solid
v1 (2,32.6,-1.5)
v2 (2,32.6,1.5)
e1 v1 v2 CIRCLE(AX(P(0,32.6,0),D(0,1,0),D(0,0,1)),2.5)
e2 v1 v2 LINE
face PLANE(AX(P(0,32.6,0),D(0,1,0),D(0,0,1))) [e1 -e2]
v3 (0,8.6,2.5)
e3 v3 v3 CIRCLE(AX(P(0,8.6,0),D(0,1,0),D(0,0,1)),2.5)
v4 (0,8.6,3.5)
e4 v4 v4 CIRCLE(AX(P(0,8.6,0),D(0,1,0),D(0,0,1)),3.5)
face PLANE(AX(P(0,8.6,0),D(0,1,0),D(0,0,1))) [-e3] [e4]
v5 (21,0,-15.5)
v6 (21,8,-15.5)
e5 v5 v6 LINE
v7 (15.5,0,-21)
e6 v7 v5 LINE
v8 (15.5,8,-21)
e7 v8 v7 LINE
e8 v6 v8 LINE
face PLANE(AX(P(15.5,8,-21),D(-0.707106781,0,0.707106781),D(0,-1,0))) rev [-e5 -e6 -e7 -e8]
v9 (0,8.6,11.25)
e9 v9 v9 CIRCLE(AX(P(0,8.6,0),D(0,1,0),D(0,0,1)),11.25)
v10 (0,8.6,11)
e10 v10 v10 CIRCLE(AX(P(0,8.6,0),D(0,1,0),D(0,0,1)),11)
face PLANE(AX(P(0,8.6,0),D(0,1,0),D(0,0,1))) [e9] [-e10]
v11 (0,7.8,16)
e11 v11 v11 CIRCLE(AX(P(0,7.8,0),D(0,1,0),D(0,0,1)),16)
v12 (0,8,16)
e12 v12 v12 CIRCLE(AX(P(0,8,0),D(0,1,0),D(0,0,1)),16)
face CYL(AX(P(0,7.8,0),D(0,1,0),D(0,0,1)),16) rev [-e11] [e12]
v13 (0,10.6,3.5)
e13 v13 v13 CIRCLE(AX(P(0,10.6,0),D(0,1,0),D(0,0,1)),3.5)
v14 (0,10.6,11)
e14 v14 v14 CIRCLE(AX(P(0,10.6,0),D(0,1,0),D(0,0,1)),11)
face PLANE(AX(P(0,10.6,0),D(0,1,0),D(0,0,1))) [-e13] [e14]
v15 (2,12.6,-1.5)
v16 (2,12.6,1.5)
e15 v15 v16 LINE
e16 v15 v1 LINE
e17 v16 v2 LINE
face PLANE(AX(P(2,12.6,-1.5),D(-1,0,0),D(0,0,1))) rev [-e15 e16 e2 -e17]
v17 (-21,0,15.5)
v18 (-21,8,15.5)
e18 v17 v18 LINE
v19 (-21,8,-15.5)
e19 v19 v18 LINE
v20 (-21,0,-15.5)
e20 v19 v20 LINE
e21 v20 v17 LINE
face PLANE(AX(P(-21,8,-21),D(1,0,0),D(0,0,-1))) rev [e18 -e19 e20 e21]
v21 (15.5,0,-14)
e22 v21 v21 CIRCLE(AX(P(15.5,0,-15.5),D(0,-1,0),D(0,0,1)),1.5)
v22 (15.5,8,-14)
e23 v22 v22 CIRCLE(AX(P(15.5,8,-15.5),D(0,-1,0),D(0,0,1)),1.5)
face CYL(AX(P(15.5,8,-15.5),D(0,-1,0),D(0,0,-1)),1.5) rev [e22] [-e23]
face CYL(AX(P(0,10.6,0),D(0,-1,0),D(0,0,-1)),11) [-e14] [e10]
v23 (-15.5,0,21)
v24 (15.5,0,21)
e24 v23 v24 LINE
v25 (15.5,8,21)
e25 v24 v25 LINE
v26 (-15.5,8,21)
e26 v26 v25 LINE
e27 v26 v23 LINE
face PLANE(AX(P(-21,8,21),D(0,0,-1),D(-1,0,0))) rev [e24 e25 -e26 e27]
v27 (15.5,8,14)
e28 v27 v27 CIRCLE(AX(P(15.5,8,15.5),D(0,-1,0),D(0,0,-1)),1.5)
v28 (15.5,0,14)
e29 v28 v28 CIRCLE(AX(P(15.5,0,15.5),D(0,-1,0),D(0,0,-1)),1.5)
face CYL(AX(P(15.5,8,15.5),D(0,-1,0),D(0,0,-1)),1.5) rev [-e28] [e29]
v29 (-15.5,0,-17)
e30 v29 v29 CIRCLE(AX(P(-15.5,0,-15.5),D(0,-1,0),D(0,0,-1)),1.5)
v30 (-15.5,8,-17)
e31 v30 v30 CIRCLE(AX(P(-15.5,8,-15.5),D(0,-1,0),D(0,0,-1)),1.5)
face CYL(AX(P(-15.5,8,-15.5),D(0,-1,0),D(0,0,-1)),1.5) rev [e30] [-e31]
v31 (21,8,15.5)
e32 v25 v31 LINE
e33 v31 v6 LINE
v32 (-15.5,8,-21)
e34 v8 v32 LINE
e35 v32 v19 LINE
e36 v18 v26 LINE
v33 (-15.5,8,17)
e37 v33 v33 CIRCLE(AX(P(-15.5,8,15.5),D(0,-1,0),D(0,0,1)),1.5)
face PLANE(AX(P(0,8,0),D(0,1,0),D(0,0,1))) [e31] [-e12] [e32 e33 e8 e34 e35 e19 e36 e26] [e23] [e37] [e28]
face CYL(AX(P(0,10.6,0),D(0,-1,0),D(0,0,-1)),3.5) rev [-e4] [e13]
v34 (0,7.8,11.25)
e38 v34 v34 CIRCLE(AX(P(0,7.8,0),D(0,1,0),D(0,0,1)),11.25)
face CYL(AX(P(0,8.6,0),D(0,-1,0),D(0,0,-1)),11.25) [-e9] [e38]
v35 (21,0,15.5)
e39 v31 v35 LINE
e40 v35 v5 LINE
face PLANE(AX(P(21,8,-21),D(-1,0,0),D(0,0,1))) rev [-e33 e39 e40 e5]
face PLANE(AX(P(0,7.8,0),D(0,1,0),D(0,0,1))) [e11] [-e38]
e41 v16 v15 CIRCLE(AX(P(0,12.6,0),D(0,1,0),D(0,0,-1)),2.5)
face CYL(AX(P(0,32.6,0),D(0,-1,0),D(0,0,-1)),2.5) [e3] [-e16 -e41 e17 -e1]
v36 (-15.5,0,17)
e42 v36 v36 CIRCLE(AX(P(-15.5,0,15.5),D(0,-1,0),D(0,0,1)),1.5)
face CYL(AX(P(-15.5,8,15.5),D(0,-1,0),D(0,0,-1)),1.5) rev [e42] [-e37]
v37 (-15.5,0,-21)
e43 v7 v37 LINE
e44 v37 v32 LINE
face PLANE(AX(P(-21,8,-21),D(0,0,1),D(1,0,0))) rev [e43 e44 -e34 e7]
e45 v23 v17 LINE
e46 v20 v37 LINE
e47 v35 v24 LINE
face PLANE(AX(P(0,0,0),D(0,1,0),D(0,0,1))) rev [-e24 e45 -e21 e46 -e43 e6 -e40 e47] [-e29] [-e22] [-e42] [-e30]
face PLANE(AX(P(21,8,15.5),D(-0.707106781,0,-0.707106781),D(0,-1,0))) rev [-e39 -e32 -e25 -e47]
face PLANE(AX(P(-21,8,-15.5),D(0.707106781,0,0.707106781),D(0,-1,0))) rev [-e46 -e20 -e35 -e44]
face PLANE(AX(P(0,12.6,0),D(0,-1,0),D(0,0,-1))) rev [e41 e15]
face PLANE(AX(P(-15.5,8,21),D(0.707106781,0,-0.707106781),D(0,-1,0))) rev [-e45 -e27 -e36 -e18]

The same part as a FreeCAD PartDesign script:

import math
import FreeCAD as App
import Part
import Sketcher
from FreeCAD import Vector


def edges_at(feature, points):
    """Names of the edges that pass closest to the given points."""
    edges = feature.Shape.Edges
    near = lambda p: min(range(len(edges)), key=lambda i: edges[i].distToShape(Part.Vertex(*p))[0])
    return sorted({f"Edge{near(p) + 1}" for p in points})

doc = App.newDocument("Part")
params = doc.addObject("Spreadsheet::Sheet", "Params")
for row, (alias, value) in enumerate([
    ("sketch1_width", "42 mm"),
    ("pad1_length", "8 mm"),
    ("chamfer_size", "5.5 mm"),
    ("sketch2_diameter", "3 mm"),
    ("sketch3_diameter", "32 mm"),
    ("pocket2_length", "0.2 mm"),
    ("sketch4_diameter", "22.5 mm"),
    ("pad2_length", "0.8 mm"),
    ("sketch5_diameter", "22 mm"),
    ("pad3_length", "2 mm"),
    ("sketch6_diameter", "7 mm"),
    ("sketch7_diameter", "5 mm"),
    ("pad4_length", "24 mm"),
    ("sketch8_radius", "2.5 mm"),
    ("sketch8_height", "3 mm"),
    ("pocket4_length", "20 mm"),
], start=1):
    params.set(f"A{row}", alias)
    params.set(f"B{row}", "=" + value)
    params.setAlias(f"B{row}", alias)

body = doc.addObject("PartDesign::Body", "Body")

sketch1 = body.newObject("Sketcher::SketchObject", "Sketch")
sketch1.AttachmentSupport = (doc.getObject("XZ_Plane"), [""])
sketch1.MapMode = "FlatFace"
sketch1.addGeometry([
    Part.LineSegment(Vector(-21, -21, 0), Vector(-21, 21, 0)),
    Part.LineSegment(Vector(-21, 21, 0), Vector(21, 21, 0)),
    Part.LineSegment(Vector(21, 21, 0), Vector(21, -21, 0)),
    Part.LineSegment(Vector(21, -21, 0), Vector(-21, -21, 0)),
], False)
sketch1.addConstraint([
    Sketcher.Constraint("Coincident", 0, 2, 1, 1),
    Sketcher.Constraint("Coincident", 1, 2, 2, 1),
    Sketcher.Constraint("Coincident", 2, 2, 3, 1),
    Sketcher.Constraint("Coincident", 3, 2, 0, 1),
    Sketcher.Constraint("Vertical", 0),
    Sketcher.Constraint("Horizontal", 1),
    Sketcher.Constraint("Vertical", 2),
    Sketcher.Constraint("Horizontal", 3),
    Sketcher.Constraint("Symmetric", 0, 2, 2, 2, -1, 1),
    Sketcher.Constraint("Equal", 3, 0),
    Sketcher.Constraint("DistanceX", 1, 1, 1, 2, 42.0),
])
sketch1.setExpression("Constraints[10]", "Params.sketch1_width")
pad1 = body.newObject("PartDesign::Pad", "Pad")
pad1.Profile = sketch1
pad1.setExpression("Length", "Params.pad1_length")
pad1.Reversed = True
doc.recompute()

chamfer = body.newObject("PartDesign::Chamfer", "Chamfer")
chamfer.Base = (pad1, edges_at(pad1, [
    (21, 4, 21),
    (-21, 4, 21),
    (-21, 4, -21),
    (21, 4, -21),
]))
chamfer.setExpression("Size", "Params.chamfer_size")

sketch2 = body.newObject("Sketcher::SketchObject", "Sketch001")
sketch2.AttachmentSupport = (doc.getObject("XZ_Plane"), [""])
sketch2.MapMode = "FlatFace"
sketch2.addGeometry([
    Part.Circle(Vector(-15.5, -15.5, 0), Vector(0, 0, 1), 1.5),
    Part.Circle(Vector(15.5, -15.5, 0), Vector(0, 0, 1), 1.5),
    Part.Circle(Vector(-15.5, 15.5, 0), Vector(0, 0, 1), 1.5),
    Part.Circle(Vector(15.5, 15.5, 0), Vector(0, 0, 1), 1.5),
], False)
sketch2.addConstraint([
    Sketcher.Constraint("Equal", 0, 1),
    Sketcher.Constraint("Equal", 1, 2),
    Sketcher.Constraint("Equal", 2, 3),
    Sketcher.Constraint("Symmetric", 1, 3, 2, 3, -1, 1),
    Sketcher.Constraint("Symmetric", 0, 3, 3, 3, -1, 1),
    Sketcher.Constraint("Symmetric", 0, 3, 1, 3, -2),
    Sketcher.Constraint("Diameter", 0, 3.0),
    Sketcher.Constraint("DistanceX", 0, 3, 1, 3, 31.0),
    Sketcher.Constraint("DistanceY", 0, 3, 2, 3, 31.0),
])
sketch2.setExpression("Constraints[6]", "Params.sketch2_diameter")
pocket1 = body.newObject("PartDesign::Pocket", "Pocket")
pocket1.Profile = sketch2
pocket1.Type = "ThroughAll"

sketch3 = body.newObject("Sketcher::SketchObject", "Sketch002")
sketch3.AttachmentSupport = (doc.getObject("XZ_Plane"), [""])
sketch3.MapMode = "FlatFace"
sketch3.AttachmentOffset = App.Placement(Vector(0, 0, -8), App.Rotation())
sketch3.addGeometry(Part.Circle(Vector(0, 0, 0), Vector(0, 0, 1), 16), False)
sketch3.addConstraint([
    Sketcher.Constraint("Coincident", 0, 3, -1, 1),
    Sketcher.Constraint("Diameter", 0, 32.0),
])
sketch3.setExpression("Constraints[1]", "Params.sketch3_diameter")
pocket2 = body.newObject("PartDesign::Pocket", "Pocket001")
pocket2.Profile = sketch3
pocket2.setExpression("Length", "Params.pocket2_length")
pocket2.Reversed = True

sketch4 = body.newObject("Sketcher::SketchObject", "Sketch003")
sketch4.AttachmentSupport = (doc.getObject("XZ_Plane"), [""])
sketch4.MapMode = "FlatFace"
sketch4.AttachmentOffset = App.Placement(Vector(0, 0, -7.8), App.Rotation())
sketch4.addGeometry(Part.Circle(Vector(0, 0, 0), Vector(0, 0, 1), 11), False)
sketch4.addConstraint([
    Sketcher.Constraint("Coincident", 0, 3, -1, 1),
    Sketcher.Constraint("Diameter", 0, 22.5),
])
sketch4.setExpression("Constraints[1]", "Params.sketch4_diameter")
pad2 = body.newObject("PartDesign::Pad", "Pad001")
pad2.Profile = sketch4
pad2.setExpression("Length", "Params.pad2_length")
pad2.Reversed = True

sketch5 = body.newObject("Sketcher::SketchObject", "Sketch004")
sketch5.AttachmentSupport = (doc.getObject("XZ_Plane"), [""])
sketch5.MapMode = "FlatFace"
sketch5.AttachmentOffset = App.Placement(Vector(0, 0, -8.6), App.Rotation())
sketch5.addGeometry(Part.Circle(Vector(0, 0, 0), Vector(0, 0, 1), 11), False)
sketch5.addConstraint([
    Sketcher.Constraint("Coincident", 0, 3, -1, 1),
    Sketcher.Constraint("Diameter", 0, 22.0),
])
sketch5.setExpression("Constraints[1]", "Params.sketch5_diameter")
pad3 = body.newObject("PartDesign::Pad", "Pad002")
pad3.Profile = sketch5
pad3.setExpression("Length", "Params.pad3_length")
pad3.Reversed = True

sketch6 = body.newObject("Sketcher::SketchObject", "Sketch005")
sketch6.AttachmentSupport = (doc.getObject("XZ_Plane"), [""])
sketch6.MapMode = "FlatFace"
sketch6.AttachmentOffset = App.Placement(Vector(0, 0, -8.6), App.Rotation())
sketch6.addGeometry(Part.Circle(Vector(0, 0, 0), Vector(0, 0, 1), 3.5), False)
sketch6.addConstraint([
    Sketcher.Constraint("Coincident", 0, 3, -1, 1),
    Sketcher.Constraint("Diameter", 0, 7.0),
])
sketch6.setExpression("Constraints[1]", "Params.sketch6_diameter")
pocket3 = body.newObject("PartDesign::Pocket", "Pocket002")
pocket3.Profile = sketch6
pocket3.Type = "ThroughAll"

sketch7 = body.newObject("Sketcher::SketchObject", "Sketch006")
sketch7.AttachmentSupport = (doc.getObject("XZ_Plane"), [""])
sketch7.MapMode = "FlatFace"
sketch7.AttachmentOffset = App.Placement(Vector(0, 0, -8.6), App.Rotation())
sketch7.addGeometry(Part.Circle(Vector(0, 0, 0), Vector(0, 0, 1), 2.5), False)
sketch7.addConstraint([
    Sketcher.Constraint("Coincident", 0, 3, -1, 1),
    Sketcher.Constraint("Diameter", 0, 5.0),
])
sketch7.setExpression("Constraints[1]", "Params.sketch7_diameter")
pad4 = body.newObject("PartDesign::Pad", "Pad003")
pad4.Profile = sketch7
pad4.setExpression("Length", "Params.pad4_length")
pad4.Reversed = True

sketch8 = body.newObject("Sketcher::SketchObject", "Sketch007")
sketch8.AttachmentSupport = (doc.getObject("XZ_Plane"), [""])
sketch8.MapMode = "FlatFace"
sketch8.AttachmentOffset = App.Placement(Vector(0, 0, -12.6), App.Rotation())
sketch8.addGeometry([
    Part.LineSegment(Vector(2, -1.5, 0), Vector(2, 1.5, 0)),
    Part.ArcOfCircle(Part.Circle(Vector(0, 0, 0), Vector(0, 0, 1), 2.5), math.radians(-37), math.radians(37)),
], False)
sketch8.addConstraint([
    Sketcher.Constraint("Coincident", 0, 1, 1, 1),
    Sketcher.Constraint("Coincident", 1, 2, 0, 2),
    Sketcher.Constraint("Vertical", 0),
    Sketcher.Constraint("Coincident", 1, 3, -1, 1),
    Sketcher.Constraint("Radius", 1, 2.5),
    Sketcher.Constraint("DistanceY", 0, 1, 0, 2, 3.0),
])
sketch8.setExpression("Constraints[4]", "Params.sketch8_radius")
sketch8.setExpression("Constraints[5]", "Params.sketch8_height")
pocket4 = body.newObject("PartDesign::Pocket", "Pocket003")
pocket4.Profile = sketch8
pocket4.setExpression("Length", "Params.pocket4_length")

doc.recompute()
